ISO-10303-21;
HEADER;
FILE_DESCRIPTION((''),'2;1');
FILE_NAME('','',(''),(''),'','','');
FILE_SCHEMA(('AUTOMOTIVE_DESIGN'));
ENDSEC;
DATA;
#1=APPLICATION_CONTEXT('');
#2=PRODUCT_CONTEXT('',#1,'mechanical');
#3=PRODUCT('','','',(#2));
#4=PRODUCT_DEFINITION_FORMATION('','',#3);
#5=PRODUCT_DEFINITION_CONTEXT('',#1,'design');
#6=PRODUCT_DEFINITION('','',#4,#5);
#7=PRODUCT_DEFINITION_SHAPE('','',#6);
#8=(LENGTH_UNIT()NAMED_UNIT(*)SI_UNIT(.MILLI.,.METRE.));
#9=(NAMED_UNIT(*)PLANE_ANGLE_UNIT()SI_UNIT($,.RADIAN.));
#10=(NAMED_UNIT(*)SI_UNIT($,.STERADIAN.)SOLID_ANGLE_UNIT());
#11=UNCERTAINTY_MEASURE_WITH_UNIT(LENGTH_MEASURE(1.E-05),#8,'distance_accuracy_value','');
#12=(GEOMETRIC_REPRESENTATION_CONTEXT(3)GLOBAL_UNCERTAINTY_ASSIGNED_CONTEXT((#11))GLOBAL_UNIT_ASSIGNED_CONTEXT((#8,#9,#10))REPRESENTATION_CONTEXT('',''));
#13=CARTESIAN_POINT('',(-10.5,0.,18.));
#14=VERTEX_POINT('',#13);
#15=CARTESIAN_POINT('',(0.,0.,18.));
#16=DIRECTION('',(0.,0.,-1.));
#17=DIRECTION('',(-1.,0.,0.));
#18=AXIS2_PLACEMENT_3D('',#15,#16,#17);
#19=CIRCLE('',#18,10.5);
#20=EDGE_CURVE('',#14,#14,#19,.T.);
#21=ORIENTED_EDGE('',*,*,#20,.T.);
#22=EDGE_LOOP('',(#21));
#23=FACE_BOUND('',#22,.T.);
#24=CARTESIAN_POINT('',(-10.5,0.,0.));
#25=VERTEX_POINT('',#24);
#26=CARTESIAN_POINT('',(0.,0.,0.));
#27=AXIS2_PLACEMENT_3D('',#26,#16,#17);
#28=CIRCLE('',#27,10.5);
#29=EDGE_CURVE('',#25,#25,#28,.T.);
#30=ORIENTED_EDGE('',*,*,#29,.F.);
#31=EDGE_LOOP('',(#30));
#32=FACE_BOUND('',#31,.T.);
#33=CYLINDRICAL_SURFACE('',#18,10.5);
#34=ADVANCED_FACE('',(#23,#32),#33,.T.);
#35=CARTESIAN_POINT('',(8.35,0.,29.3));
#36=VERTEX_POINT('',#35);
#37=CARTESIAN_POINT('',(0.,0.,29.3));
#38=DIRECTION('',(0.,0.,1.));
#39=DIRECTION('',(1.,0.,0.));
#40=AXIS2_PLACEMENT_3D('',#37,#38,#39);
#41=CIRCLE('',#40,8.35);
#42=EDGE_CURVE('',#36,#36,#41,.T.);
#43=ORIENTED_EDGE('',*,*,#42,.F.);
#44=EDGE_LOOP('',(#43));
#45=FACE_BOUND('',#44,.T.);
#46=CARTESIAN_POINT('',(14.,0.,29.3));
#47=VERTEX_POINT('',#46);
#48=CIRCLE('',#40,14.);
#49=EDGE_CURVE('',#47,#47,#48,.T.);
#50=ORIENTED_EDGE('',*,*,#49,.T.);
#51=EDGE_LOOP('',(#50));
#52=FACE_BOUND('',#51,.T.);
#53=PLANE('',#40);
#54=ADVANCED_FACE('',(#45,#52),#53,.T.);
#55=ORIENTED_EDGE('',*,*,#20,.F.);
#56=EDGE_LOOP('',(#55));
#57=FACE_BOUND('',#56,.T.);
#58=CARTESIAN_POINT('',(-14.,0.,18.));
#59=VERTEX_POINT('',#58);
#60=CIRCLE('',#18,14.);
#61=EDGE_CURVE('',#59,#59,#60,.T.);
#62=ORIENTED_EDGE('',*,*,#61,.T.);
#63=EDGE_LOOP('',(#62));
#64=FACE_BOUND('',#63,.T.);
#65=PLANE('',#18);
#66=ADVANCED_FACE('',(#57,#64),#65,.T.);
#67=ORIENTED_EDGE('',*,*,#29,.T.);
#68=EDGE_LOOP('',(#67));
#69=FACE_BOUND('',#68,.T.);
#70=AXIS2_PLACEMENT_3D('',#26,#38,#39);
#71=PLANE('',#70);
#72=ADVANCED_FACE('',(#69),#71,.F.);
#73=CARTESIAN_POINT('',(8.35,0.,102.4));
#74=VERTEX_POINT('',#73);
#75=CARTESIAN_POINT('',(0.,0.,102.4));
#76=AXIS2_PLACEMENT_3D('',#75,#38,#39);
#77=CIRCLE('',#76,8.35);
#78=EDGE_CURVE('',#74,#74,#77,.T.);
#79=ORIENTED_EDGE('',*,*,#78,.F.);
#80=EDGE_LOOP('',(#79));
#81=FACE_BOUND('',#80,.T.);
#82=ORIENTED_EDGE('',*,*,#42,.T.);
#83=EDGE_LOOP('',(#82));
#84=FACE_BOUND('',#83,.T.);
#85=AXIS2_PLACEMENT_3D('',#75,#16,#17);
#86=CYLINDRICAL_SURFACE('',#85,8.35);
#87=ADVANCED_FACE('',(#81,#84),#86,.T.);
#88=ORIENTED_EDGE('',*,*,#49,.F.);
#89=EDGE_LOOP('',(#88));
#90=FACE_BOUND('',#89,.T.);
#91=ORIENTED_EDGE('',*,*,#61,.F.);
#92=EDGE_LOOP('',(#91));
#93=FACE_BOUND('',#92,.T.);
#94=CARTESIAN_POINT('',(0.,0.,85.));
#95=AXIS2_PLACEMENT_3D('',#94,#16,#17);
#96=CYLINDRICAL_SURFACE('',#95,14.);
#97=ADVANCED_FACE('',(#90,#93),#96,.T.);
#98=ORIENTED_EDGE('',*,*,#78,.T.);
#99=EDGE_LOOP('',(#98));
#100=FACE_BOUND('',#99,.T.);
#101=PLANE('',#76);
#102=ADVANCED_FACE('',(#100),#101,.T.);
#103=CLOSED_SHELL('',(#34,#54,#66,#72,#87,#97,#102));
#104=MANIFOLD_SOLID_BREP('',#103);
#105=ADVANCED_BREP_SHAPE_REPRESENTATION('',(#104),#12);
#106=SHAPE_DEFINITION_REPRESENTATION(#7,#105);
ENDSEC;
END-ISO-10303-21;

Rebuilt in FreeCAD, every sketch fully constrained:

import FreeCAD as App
import Part
import Sketcher
Q = App.Units.Quantity


def add_polygon(sketch, points):
    """Adds a closed chain of lines whose ends are joined by coincident constraints."""
    first, n = sketch.GeometryCount, len(points)
    for a, b in zip(points, points[1:] + points[:1]):
        sketch.addGeometry(Part.LineSegment(App.Vector(*a, 0), App.Vector(*b, 0)), False)
    for i in range(n):
        sketch.addConstraint(Sketcher.Constraint("Coincident", first + i, 2, first + (i + 1) % n, 1))

doc = App.newDocument("Part")
body = doc.addObject("PartDesign::Body", "Body")

# Sketch on XY plane
sketch1 = body.newObject("Sketcher::SketchObject", "Sketch")
sketch1.AttachmentSupport = (doc.getObject("XY_Plane"), [""])
sketch1.MapMode = "FlatFace"
sketch1.addGeometry(Part.Circle(App.Vector(0, 0, 0), App.Vector(0, 0, 1), 14), False)
sketch1.addConstraint([
    Sketcher.Constraint("Coincident", 0, 3, -1, 1),
    Sketcher.Constraint("Diameter", 0, Q("28 mm")),
])
pad1 = body.newObject("PartDesign::Pad", "Pad")
pad1.Profile = sketch1
pad1.Length = 85

# Sketch on XY plane
sketch2 = body.newObject("Sketcher::SketchObject", "Sketch001")
sketch2.AttachmentSupport = (doc.getObject("XY_Plane"), [""])
sketch2.MapMode = "FlatFace"
add_polygon(sketch2, [(24, 24), (24, -24), (-24, -24), (-24, 24)])  # lines 0-3
sketch2.addGeometry(Part.Circle(App.Vector(0, 0, 0), App.Vector(0, 0, 1), 11), False)  # 4
sketch2.addConstraint([
    Sketcher.Constraint("Vertical", 0),
    Sketcher.Constraint("Horizontal", 1),
    Sketcher.Constraint("Vertical", 2),
    Sketcher.Constraint("Horizontal", 3),
    Sketcher.Constraint("Coincident", 4, 3, -1, 1),
    Sketcher.Constraint("Symmetric", 0, 2, 2, 2, -1, 1),
    Sketcher.Constraint("Equal", 3, 0),
    Sketcher.Constraint("Diameter", 4, Q("21.3 mm")),
    Sketcher.Constraint("DistanceX", 1, 2, 1, 1, Q("48.754 mm")),
])
pocket1 = body.newObject("PartDesign::Pocket", "Pocket")
pocket1.Profile = sketch2
pocket1.Length = 18
pocket1.Reversed = True

# Sketch on XY plane
sketch3 = body.newObject("Sketcher::SketchObject", "Sketch002")
sketch3.AttachmentSupport = (doc.getObject("XY_Plane"), [""])
sketch3.MapMode = "FlatFace"
sketch3.AttachmentOffset = App.Placement(App.Vector(0, 0, 29.3), App.Rotation())
sketch3.addGeometry(Part.Circle(App.Vector(0, 0, 0), App.Vector(0, 0, 1), 14), False)
sketch3.addConstraint([
    Sketcher.Constraint("Coincident", 0, 3, -1, 1),
    Sketcher.Constraint("Diameter", 0, Q("28 mm")),
])
pocket2 = body.newObject("PartDesign::Pocket", "Pocket001")
pocket2.Profile = sketch3
pocket2.Length = 55.7
pocket2.Reversed = True

# Sketch on XY plane
sketch4 = body.newObject("Sketcher::SketchObject", "Sketch003")
sketch4.AttachmentSupport = (doc.getObject("XY_Plane"), [""])
sketch4.MapMode = "FlatFace"
sketch4.AttachmentOffset = App.Placement(App.Vector(0, 0, 29.3), App.Rotation())
sketch4.addGeometry(Part.Circle(App.Vector(0, 0, 0), App.Vector(0, 0, 1), 8), False)
sketch4.addConstraint([
    Sketcher.Constraint("Coincident", 0, 3, -1, 1),
    Sketcher.Constraint("Diameter", 0, Q("16.7 mm")),
])
pad2 = body.newObject("PartDesign::Pad", "Pad001")
pad2.Profile = sketch4
pad2.Length = 73.1

# Sketch on XY plane
sketch5 = body.newObject("Sketcher::SketchObject", "Sketch004")
sketch5.AttachmentSupport = (doc.getObject("XY_Plane"), [""])
sketch5.MapMode = "FlatFace"
add_polygon(sketch5, [(26, 26), (26, -26), (-26, -26), (-26, 26)])  # lines 0-3
sketch5.addGeometry(Part.Circle(App.Vector(0, 0, 0), App.Vector(0, 0, 1), 10), False)  # 4
sketch5.addConstraint([
    Sketcher.Constraint("Vertical", 0),
    Sketcher.Constraint("Horizontal", 1),
    Sketcher.Constraint("Vertical", 2),
    Sketcher.Constraint("Horizontal", 3),
    Sketcher.Constraint("Coincident", 4, 3, -1, 1),
    Sketcher.Constraint("Symmetric", 0, 2, 2, 2, -1, 1),
    Sketcher.Constraint("Equal", 3, 0),
    Sketcher.Constraint("Diameter", 4, Q("21 mm")),
    Sketcher.Constraint("DistanceX", 1, 2, 1, 1, Q("51.958 mm")),
])
pocket3 = body.newObject("PartDesign::Pocket", "Pocket002")
pocket3.Profile = sketch5
pocket3.Length = 18
pocket3.Reversed = True

doc.recompute()
